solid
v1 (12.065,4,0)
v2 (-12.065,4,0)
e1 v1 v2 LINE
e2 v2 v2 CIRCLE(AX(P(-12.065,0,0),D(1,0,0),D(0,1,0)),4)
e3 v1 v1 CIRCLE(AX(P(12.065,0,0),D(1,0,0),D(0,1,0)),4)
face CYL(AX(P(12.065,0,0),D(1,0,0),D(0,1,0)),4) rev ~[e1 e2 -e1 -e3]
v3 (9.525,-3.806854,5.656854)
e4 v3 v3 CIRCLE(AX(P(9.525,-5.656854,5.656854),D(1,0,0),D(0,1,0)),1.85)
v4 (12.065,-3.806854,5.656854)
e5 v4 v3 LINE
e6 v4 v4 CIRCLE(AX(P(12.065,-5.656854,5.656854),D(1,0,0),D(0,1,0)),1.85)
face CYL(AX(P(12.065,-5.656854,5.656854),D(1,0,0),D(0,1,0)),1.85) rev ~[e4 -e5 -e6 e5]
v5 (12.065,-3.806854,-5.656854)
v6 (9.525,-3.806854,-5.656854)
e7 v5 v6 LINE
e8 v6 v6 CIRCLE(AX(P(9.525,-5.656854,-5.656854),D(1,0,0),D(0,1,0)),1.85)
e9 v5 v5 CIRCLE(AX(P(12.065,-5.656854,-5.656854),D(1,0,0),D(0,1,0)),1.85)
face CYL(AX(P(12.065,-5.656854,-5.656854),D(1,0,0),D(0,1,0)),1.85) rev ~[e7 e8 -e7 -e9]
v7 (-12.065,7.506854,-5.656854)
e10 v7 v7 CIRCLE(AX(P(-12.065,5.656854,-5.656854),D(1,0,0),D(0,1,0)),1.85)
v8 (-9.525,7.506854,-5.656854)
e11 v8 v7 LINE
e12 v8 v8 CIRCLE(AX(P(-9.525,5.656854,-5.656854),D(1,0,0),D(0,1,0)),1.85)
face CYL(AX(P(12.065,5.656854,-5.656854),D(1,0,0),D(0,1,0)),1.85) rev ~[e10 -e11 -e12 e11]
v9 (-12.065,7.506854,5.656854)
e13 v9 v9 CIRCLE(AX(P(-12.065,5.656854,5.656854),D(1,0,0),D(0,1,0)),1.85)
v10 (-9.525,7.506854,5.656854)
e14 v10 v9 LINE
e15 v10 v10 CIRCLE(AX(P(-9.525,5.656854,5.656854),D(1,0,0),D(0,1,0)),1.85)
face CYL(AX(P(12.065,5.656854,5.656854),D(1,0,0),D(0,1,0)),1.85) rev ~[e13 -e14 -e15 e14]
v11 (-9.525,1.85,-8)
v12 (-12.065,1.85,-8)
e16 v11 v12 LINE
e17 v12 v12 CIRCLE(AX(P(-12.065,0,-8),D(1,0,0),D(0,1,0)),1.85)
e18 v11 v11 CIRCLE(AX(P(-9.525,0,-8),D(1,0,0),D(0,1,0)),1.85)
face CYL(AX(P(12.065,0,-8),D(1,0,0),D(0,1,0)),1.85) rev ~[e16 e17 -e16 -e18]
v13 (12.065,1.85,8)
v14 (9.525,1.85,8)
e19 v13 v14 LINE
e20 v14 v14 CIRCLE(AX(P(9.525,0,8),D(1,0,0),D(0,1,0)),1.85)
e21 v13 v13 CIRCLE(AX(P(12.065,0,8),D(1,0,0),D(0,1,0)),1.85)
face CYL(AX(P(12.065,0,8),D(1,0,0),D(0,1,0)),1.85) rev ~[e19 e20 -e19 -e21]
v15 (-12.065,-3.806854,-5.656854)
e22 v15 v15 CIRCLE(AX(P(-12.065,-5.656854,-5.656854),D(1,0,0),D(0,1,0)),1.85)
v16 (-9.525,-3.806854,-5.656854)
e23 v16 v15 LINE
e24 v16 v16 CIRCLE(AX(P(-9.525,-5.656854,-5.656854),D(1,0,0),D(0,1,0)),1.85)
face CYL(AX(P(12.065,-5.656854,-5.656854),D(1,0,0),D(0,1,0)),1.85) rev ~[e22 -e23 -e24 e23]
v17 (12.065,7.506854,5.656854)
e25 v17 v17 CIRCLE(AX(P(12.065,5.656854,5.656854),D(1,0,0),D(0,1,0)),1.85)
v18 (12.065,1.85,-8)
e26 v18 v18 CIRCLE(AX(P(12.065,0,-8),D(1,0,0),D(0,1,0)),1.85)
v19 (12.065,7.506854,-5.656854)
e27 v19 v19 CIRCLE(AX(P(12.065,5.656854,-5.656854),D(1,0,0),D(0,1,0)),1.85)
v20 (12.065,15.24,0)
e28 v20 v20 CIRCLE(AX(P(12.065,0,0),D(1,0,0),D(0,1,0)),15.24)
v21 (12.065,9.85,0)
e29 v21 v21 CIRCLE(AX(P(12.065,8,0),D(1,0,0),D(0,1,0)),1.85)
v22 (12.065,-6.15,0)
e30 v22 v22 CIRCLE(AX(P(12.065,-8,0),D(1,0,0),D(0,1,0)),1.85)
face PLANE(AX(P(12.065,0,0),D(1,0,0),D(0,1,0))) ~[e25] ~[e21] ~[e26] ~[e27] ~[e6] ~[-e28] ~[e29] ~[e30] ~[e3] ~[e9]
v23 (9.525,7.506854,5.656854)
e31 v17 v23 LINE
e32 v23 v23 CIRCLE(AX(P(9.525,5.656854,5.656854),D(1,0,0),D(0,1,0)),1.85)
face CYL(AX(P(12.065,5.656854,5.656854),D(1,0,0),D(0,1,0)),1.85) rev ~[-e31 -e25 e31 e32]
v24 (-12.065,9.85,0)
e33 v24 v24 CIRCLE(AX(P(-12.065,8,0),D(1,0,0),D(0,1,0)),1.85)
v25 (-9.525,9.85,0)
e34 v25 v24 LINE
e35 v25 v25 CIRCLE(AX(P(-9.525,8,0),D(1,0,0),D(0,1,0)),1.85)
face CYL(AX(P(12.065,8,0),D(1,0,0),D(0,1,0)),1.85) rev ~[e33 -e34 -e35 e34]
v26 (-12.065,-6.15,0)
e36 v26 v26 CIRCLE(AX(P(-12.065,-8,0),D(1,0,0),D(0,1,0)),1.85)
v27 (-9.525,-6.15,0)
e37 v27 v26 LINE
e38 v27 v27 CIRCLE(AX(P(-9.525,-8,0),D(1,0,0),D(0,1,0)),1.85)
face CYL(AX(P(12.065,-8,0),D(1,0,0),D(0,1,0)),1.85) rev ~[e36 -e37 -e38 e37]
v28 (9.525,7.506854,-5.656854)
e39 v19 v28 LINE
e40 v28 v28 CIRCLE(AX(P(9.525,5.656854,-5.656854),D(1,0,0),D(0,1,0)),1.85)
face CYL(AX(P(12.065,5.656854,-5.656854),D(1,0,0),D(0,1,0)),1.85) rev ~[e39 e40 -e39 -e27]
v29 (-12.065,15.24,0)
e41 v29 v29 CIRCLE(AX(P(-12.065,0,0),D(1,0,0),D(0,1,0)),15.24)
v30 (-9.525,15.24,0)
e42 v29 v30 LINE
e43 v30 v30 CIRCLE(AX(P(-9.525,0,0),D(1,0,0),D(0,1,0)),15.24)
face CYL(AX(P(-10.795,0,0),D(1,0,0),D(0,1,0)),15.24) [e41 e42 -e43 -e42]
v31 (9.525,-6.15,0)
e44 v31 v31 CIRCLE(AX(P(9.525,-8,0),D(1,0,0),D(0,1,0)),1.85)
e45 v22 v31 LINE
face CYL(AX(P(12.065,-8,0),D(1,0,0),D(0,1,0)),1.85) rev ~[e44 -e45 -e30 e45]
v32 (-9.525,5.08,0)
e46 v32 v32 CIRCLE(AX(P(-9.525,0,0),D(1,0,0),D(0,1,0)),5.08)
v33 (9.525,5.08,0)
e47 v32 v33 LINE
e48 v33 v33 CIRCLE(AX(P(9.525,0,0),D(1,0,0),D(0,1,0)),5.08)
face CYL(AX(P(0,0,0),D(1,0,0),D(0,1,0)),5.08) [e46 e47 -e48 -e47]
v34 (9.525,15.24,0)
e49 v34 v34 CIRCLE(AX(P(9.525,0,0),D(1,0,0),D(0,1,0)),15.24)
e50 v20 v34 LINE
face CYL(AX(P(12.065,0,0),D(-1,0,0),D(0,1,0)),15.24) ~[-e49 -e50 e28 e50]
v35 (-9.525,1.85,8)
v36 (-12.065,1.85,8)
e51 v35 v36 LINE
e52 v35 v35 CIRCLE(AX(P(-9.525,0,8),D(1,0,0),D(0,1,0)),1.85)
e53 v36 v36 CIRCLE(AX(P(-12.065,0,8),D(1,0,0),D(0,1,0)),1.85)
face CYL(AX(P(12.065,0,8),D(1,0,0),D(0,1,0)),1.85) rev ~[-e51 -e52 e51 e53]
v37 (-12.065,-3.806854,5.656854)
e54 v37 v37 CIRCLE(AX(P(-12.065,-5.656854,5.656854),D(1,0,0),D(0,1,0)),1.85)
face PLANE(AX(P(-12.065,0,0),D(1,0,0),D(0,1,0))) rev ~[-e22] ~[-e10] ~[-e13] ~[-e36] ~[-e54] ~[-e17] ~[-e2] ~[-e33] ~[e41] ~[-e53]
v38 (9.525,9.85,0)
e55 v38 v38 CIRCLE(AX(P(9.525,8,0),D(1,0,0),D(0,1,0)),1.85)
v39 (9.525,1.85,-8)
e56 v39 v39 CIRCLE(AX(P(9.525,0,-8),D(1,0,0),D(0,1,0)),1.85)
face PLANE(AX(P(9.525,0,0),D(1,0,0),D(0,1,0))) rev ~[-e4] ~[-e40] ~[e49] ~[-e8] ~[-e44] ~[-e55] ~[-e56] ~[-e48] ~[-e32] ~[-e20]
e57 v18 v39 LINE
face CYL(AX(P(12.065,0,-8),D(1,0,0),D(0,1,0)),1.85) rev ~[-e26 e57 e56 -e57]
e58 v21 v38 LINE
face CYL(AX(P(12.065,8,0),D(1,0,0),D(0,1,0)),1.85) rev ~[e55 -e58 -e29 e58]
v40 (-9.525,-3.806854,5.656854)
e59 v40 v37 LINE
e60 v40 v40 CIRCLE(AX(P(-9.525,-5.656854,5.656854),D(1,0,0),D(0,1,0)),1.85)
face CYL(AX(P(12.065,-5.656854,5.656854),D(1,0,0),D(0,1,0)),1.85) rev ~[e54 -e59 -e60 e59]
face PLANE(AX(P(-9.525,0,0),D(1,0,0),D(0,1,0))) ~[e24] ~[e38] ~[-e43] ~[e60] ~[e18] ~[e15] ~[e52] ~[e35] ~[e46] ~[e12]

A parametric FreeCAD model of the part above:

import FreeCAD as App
import Part
import Sketcher
Q = App.Units.Quantity

doc = App.newDocument("Part")
body = doc.addObject("PartDesign::Body", "Body")

# Sketch on XY plane
sketch1 = body.newObject("Sketcher::SketchObject", "Sketch")
sketch1.AttachmentSupport = (doc.getObject("XY_Plane"), [""])
sketch1.MapMode = "FlatFace"
sketch1.addGeometry([
    Part.LineSegment(App.Vector(-12.1, 15.2, 0), App.Vector(-12.1, 0, 0)),  # 0
    Part.LineSegment(App.Vector(-12.1, 0, 0), App.Vector(12.1, 0, 0)),  # 1
    Part.LineSegment(App.Vector(12.1, 0, 0), App.Vector(12.1, 15.2, 0)),  # 2
    Part.LineSegment(App.Vector(12.1, 15.2, 0), App.Vector(9.5, 15.2, 0)),  # 3
    Part.LineSegment(App.Vector(9.5, 15.2, 0), App.Vector(9.5, 5.1, 0)),  # 4
    Part.LineSegment(App.Vector(9.5, 5.1, 0), App.Vector(-9.5, 5.1, 0)),  # 5
    Part.LineSegment(App.Vector(-9.5, 5.1, 0), App.Vector(-9.5, 15.2, 0)),  # 6
    Part.LineSegment(App.Vector(-9.5, 15.2, 0), App.Vector(-12.1, 15.2, 0)),  # 7
], False)
sketch1.addConstraint([
    Sketcher.Constraint("Coincident", 0, 2, 1, 1),
    Sketcher.Constraint("Coincident", 1, 2, 2, 1),
    Sketcher.Constraint("Coincident", 2, 2, 3, 1),
    Sketcher.Constraint("Coincident", 3, 2, 4, 1),
    Sketcher.Constraint("Coincident", 4, 2, 5, 1),
    Sketcher.Constraint("Coincident", 5, 2, 6, 1),
    Sketcher.Constraint("Coincident", 6, 2, 7, 1),
    Sketcher.Constraint("Coincident", 7, 2, 0, 1),
    Sketcher.Constraint("Vertical", 0),
    Sketcher.Constraint("Horizontal", 1),
    Sketcher.Constraint("Vertical", 2),
    Sketcher.Constraint("Horizontal", 3),
    Sketcher.Constraint("Vertical", 4),
    Sketcher.Constraint("Horizontal", 5),
    Sketcher.Constraint("Vertical", 6),
    Sketcher.Constraint("Horizontal", 7),
    Sketcher.Constraint("Symmetric", 0, 2, 1, 2, -1, 1),
    Sketcher.Constraint("Symmetric", 3, 2, 6, 2, -2),
    Sketcher.Constraint("DistanceX", 3, 2, 3, 1, Q("0.1 in")),
    Sketcher.Constraint("DistanceY", 0, 2, 0, 1, Q("0.6 in")),
    Sketcher.Constraint("DistanceY", 4, 2, 4, 1, Q("0.4 in")),
    Sketcher.Constraint("DistanceX", 1, 1, 1, 2, Q("0.95 in")),
])
revolution = body.newObject("PartDesign::Revolution", "Revolution")
revolution.Profile = sketch1
revolution.ReferenceAxis = (sketch1, ["H_Axis"])
revolution.Angle = 360

# Sketch on YZ plane
sketch2 = body.newObject("Sketcher::SketchObject", "Sketch001")
sketch2.AttachmentSupport = (doc.getObject("YZ_Plane"), [""])
sketch2.MapMode = "FlatFace"
sketch2.AttachmentOffset = App.Placement(App.Vector(0, 0, 0.475 * 25.4), App.Rotation())
sketch2.addGeometry([
    Part.Circle(App.Vector(0, 0, 0), App.Vector(0, 0, 1), 4),  # 0
    Part.Circle(App.Vector(0, 8, 0), App.Vector(0, 0, 1), 1.9),  # 1
    Part.Circle(App.Vector(-5.7, 5.7, 0), App.Vector(0, 0, 1), 1.9),  # 2
    Part.Circle(App.Vector(-8, 0, 0), App.Vector(0, 0, 1), 1.9),  # 3
    Part.Circle(App.Vector(-5.7, -5.7, 0), App.Vector(0, 0, 1), 1.9),  # 4
    Part.Circle(App.Vector(0, -8, 0), App.Vector(0, 0, 1), 1.9),  # 5
    Part.Circle(App.Vector(5.7, -5.7, 0), App.Vector(0, 0, 1), 1.9),  # 6
    Part.Circle(App.Vector(8, 0, 0), App.Vector(0, 0, 1), 1.9),  # 7
    Part.Circle(App.Vector(5.7, 5.7, 0), App.Vector(0, 0, 1), 1.9),  # 8
], False)
sketch2.addConstraint([
    Sketcher.Constraint("Coincident", 0, 3, -1, 1),
    Sketcher.Constraint("Equal", 1, 2),
    Sketcher.Constraint("Equal", 2, 3),
    Sketcher.Constraint("Equal", 3, 4),
    Sketcher.Constraint("Equal", 4, 5),
    Sketcher.Constraint("Equal", 5, 6),
    Sketcher.Constraint("Equal", 6, 7),
    Sketcher.Constraint("Equal", 7, 8),
    Sketcher.Constraint("Symmetric", 1, 3, 5, 3, -1, 1),
    Sketcher.Constraint("Symmetric", 2, 3, 6, 3, -1, 1),
    Sketcher.Constraint("Symmetric", 3, 3, 7, 3, -1, 1),
    Sketcher.Constraint("Symmetric", 4, 3, 8, 3, -1, 1),
    Sketcher.Constraint("Symmetric", 4, 3, 6, 3, -2),
    Sketcher.Constraint("PointOnObject", 1, 3, -2),
    Sketcher.Constraint("PointOnObject", 3, 3, -1),
    Sketcher.Constraint("Diameter", 0, 8.0),
    Sketcher.Constraint("Diameter", 1, 3.7),
    Sketcher.Constraint("DistanceY", -1, 1, 1, 3, 8.0),
    Sketcher.Constraint("DistanceX", 3, 3, -1, 1, 8.0),
    Sketcher.Constraint("DistanceX", 2, 3, -1, 1, 5.656854),
    Sketcher.Constraint("DistanceY", -1, 1, 2, 3, 5.656854),
])
pocket1 = body.newObject("PartDesign::Pocket", "Pocket")
pocket1.Profile = sketch2
pocket1.Length = Q("1 in")

doc.recompute()
